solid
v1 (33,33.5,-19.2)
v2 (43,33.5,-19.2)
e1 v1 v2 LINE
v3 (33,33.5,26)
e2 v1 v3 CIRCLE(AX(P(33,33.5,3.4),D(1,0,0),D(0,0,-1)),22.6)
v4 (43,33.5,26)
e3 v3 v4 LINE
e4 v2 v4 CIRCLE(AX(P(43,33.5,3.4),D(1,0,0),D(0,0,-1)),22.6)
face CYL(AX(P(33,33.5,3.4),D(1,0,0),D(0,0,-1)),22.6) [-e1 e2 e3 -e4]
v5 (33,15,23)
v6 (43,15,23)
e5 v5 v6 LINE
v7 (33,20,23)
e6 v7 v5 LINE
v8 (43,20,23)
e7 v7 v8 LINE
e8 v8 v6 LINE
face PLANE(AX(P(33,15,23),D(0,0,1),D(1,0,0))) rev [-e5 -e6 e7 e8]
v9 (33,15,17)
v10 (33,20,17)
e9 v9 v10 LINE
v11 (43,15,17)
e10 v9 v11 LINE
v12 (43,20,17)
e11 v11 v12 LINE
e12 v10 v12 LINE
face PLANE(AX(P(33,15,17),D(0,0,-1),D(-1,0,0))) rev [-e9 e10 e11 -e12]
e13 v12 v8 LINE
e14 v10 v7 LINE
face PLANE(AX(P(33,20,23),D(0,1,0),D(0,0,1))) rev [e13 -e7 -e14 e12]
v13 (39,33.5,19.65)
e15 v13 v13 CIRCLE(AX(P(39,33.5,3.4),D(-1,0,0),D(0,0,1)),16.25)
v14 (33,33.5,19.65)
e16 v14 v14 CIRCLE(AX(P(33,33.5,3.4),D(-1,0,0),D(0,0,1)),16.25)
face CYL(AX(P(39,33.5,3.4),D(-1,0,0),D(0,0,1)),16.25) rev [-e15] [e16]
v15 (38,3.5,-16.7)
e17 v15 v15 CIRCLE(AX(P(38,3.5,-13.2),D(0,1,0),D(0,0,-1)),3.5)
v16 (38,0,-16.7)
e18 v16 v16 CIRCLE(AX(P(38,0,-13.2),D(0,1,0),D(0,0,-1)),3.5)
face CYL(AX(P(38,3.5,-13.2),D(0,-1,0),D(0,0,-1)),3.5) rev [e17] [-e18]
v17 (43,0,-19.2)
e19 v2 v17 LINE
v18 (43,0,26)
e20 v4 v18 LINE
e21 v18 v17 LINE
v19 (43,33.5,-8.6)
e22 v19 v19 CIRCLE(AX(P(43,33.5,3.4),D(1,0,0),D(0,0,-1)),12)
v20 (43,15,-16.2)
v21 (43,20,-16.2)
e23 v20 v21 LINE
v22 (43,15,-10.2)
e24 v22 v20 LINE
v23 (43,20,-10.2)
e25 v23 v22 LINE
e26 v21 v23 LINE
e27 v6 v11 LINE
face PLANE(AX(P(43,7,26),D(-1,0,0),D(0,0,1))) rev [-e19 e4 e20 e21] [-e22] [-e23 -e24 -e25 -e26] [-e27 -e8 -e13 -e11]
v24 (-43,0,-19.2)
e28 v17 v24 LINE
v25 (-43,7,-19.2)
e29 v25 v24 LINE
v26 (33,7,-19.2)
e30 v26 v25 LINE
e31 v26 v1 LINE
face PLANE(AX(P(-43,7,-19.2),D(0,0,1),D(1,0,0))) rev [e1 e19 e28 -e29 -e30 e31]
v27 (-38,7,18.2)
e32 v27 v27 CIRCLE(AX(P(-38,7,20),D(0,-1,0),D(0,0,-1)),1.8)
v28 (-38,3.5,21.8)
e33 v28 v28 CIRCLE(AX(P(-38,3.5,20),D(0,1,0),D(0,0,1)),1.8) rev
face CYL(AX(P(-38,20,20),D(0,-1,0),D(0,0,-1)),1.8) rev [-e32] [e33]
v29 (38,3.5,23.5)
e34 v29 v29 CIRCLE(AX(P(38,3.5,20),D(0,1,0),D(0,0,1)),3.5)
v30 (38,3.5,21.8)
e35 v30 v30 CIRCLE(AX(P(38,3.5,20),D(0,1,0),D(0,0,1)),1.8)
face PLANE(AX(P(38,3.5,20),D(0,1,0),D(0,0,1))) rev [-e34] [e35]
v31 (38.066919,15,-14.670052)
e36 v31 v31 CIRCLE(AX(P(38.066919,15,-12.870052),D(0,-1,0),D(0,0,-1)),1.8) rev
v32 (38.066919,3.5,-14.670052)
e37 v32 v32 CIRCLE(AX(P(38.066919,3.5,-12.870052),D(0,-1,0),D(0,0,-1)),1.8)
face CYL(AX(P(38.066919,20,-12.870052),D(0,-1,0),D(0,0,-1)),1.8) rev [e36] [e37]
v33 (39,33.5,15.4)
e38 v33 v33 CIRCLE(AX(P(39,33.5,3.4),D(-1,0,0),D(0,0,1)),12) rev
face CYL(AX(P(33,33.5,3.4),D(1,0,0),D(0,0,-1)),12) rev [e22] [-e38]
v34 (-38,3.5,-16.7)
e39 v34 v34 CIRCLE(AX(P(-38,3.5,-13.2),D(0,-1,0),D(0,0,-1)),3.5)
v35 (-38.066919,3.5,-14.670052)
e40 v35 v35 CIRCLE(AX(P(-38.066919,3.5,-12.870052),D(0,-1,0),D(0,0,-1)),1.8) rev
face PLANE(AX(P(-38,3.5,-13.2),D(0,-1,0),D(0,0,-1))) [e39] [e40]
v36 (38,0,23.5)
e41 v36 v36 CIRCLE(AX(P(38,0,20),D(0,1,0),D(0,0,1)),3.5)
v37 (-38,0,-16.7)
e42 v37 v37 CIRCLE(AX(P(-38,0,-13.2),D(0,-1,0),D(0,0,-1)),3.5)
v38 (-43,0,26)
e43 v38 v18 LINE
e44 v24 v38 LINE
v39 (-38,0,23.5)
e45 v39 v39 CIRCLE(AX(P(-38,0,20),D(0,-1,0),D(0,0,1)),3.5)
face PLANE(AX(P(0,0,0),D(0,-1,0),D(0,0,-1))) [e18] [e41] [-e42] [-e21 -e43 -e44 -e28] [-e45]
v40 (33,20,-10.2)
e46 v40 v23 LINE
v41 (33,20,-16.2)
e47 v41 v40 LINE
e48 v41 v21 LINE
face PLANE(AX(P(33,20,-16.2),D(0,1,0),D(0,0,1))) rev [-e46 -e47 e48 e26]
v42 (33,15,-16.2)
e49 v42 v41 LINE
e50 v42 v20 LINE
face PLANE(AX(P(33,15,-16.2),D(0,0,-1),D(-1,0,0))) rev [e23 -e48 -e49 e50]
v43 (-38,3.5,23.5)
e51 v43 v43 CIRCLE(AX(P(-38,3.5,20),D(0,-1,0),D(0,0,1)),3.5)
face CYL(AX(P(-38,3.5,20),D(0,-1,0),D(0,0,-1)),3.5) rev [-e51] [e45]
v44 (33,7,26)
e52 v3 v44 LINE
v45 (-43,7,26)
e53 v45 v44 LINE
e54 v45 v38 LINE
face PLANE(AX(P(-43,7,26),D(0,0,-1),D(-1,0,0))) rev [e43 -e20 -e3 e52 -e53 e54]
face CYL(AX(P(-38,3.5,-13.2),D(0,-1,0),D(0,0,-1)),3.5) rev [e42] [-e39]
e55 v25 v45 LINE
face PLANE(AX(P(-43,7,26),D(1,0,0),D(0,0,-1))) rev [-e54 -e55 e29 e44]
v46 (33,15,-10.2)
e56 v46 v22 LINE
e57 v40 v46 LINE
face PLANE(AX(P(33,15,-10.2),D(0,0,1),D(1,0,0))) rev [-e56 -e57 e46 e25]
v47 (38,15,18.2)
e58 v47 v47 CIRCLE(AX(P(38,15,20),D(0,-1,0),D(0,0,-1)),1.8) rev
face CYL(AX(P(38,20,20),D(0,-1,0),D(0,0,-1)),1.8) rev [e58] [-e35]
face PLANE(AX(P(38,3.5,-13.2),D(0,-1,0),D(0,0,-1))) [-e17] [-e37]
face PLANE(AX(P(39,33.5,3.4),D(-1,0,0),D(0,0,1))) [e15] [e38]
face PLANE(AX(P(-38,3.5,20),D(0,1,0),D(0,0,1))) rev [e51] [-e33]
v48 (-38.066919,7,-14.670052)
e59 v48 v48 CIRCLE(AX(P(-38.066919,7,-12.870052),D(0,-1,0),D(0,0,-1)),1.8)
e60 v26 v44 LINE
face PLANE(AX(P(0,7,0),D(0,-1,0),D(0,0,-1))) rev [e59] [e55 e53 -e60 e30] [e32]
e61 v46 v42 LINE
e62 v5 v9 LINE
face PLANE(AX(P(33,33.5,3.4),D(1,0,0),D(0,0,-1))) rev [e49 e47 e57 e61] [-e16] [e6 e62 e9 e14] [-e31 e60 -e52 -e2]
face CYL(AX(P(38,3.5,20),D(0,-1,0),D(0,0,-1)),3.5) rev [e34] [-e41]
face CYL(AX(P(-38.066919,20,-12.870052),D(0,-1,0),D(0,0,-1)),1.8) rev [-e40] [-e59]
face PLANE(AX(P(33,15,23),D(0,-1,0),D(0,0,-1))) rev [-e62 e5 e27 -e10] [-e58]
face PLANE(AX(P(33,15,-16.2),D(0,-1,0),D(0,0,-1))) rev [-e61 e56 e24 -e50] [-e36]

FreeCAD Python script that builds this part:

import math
import FreeCAD as App
import Part
import Sketcher

V = App.Vector

doc = App.newDocument("Part")
body = doc.addObject("PartDesign::Body", "Body")

# Sketch on XZ plane
sketch1 = body.newObject("Sketcher::SketchObject", "Sketch")
sketch1.AttachmentSupport = (doc.getObject("XZ_Plane"), [""])
sketch1.MapMode = "FlatFace"
sketch1.addGeometry([
    Part.LineSegment(V(-43, -19, 0), V(-43, 26, 0)),
    Part.LineSegment(V(-43, 26, 0), V(43, 26, 0)),
    Part.LineSegment(V(43, 26, 0), V(43, -19, 0)),
    Part.LineSegment(V(43, -19, 0), V(-43, -19, 0)),
], False)
sketch1.addConstraint([
    Sketcher.Constraint("Coincident", 0, 2, 1, 1),
    Sketcher.Constraint("Coincident", 1, 2, 2, 1),
    Sketcher.Constraint("Coincident", 2, 2, 3, 1),
    Sketcher.Constraint("Coincident", 3, 2, 0, 1),
    Sketcher.Constraint("Vertical", 0),
    Sketcher.Constraint("Horizontal", 1),
    Sketcher.Constraint("Vertical", 2),
    Sketcher.Constraint("Horizontal", 3),
    Sketcher.Constraint("DistanceX", 1, 1, 1, 2, 86.0),
    Sketcher.Constraint("DistanceY", 0, 1, 0, 2, 45.2),
    Sketcher.Constraint("DistanceX", 0, 2, -1, 1, 43.0),
    Sketcher.Constraint("DistanceY", -1, 1, 0, 2, 26.0),
])
pad1 = body.newObject("PartDesign::Pad", "Pad")
pad1.Profile = sketch1
pad1.Length = 7
pad1.Reversed = True

# Sketch on YZ plane
sketch2 = body.newObject("Sketcher::SketchObject", "Sketch001")
sketch2.AttachmentSupport = (doc.getObject("YZ_Plane"), [""])
sketch2.MapMode = "FlatFace"
sketch2.AttachmentOffset = App.Placement(V(0, 0, 43), App.Rotation())
sketch2.addGeometry([
    Part.LineSegment(V(0, 26, 0), V(0, -19, 0)),  # 0
    Part.LineSegment(V(0, -19, 0), V(34, -19, 0)),  # 1
    Part.ArcOfCircle(Part.Circle(V(34, 3, 0), V(0, 0, 1), 23), math.radians(-90), math.radians(90)),  # 2
    Part.LineSegment(V(34, 26, 0), V(0, 26, 0)),  # 3
    Part.LineSegment(V(15, -10, 0), V(20, -10, 0)),  # 4
    Part.LineSegment(V(20, -10, 0), V(20, -16, 0)),  # 5
    Part.LineSegment(V(20, -16, 0), V(15, -16, 0)),  # 6
    Part.LineSegment(V(15, -16, 0), V(15, -10, 0)),  # 7
    Part.LineSegment(V(15, 23, 0), V(20, 23, 0)),  # 8
    Part.LineSegment(V(20, 23, 0), V(20, 17, 0)),  # 9
    Part.LineSegment(V(20, 17, 0), V(15, 17, 0)),  # 10
    Part.LineSegment(V(15, 17, 0), V(15, 23, 0)),  # 11
    Part.Circle(V(34, 3, 0), V(0, 0, 1), 12),  # 12
], False)
sketch2.addConstraint([
    Sketcher.Constraint("Coincident", 0, 2, 1, 1),
    Sketcher.Constraint("Tangent", 1, 2, 2, 1),
    Sketcher.Constraint("Tangent", 2, 2, 3, 1),
    Sketcher.Constraint("Coincident", 3, 2, 0, 1),
    Sketcher.Constraint("Coincident", 4, 2, 5, 1),
    Sketcher.Constraint("Coincident", 5, 2, 6, 1),
    Sketcher.Constraint("Coincident", 6, 2, 7, 1),
    Sketcher.Constraint("Coincident", 7, 2, 4, 1),
    Sketcher.Constraint("Coincident", 8, 2, 9, 1),
    Sketcher.Constraint("Coincident", 9, 2, 10, 1),
    Sketcher.Constraint("Coincident", 10, 2, 11, 1),
    Sketcher.Constraint("Coincident", 11, 2, 8, 1),
    Sketcher.Constraint("Vertical", 0),
    Sketcher.Constraint("Horizontal", 1),
    Sketcher.Constraint("Horizontal", 3),
    Sketcher.Constraint("Horizontal", 4),
    Sketcher.Constraint("Vertical", 5),
    Sketcher.Constraint("Horizontal", 6),
    Sketcher.Constraint("Vertical", 7),
    Sketcher.Constraint("Horizontal", 8),
    Sketcher.Constraint("Vertical", 9),
    Sketcher.Constraint("Horizontal", 10),
    Sketcher.Constraint("Vertical", 11),
    Sketcher.Constraint("Coincident", 12, 3, 2, 3),
    Sketcher.Constraint("PointOnObject", 0, 2, -2),
    Sketcher.Constraint("Vertical", 5, 2, 8, 2),
    Sketcher.Constraint("Vertical", 7, 2, 10, 2),
    Sketcher.Constraint("Equal", 7, 9),
    Sketcher.Constraint("Diameter", 12, 24.0),
    Sketcher.Constraint("Radius", 2, 22.6),
    Sketcher.Constraint("DistanceX", 4, 1, 4, 2, 5.0),
    Sketcher.Constraint("DistanceY", 5, 2, 5, 1, 6.0),
    Sketcher.Constraint("DistanceX", 1, 1, 1, 2, 33.5),
    Sketcher.Constraint("DistanceY", -1, 1, 2, 2, 26.0),
    Sketcher.Constraint("DistanceX", -1, 1, 4, 2, 20.0),
    Sketcher.Constraint("DistanceY", -1, 1, 8, 2, 23.0),
    Sketcher.Constraint("DistanceY", 1, 2, 4, 2, 9.0),
])
pad2 = body.newObject("PartDesign::Pad", "Pad001")
pad2.Profile = sketch2
pad2.Length = 10
pad2.Reversed = True

# Sketch on YZ plane
sketch3 = body.newObject("Sketcher::SketchObject", "Sketch002")
sketch3.AttachmentSupport = (doc.getObject("YZ_Plane"), [""])
sketch3.MapMode = "FlatFace"
sketch3.AttachmentOffset = App.Placement(V(0, 0, 33), App.Rotation())
sketch3.addGeometry(Part.Circle(V(34, 3, 0), V(0, 0, 1), 16), False)
sketch3.addConstraint([
    Sketcher.Constraint("Diameter", 0, 32.5),
    Sketcher.Constraint("DistanceX", -1, 1, 0, 3, 33.5),
    Sketcher.Constraint("DistanceY", -1, 1, 0, 3, 3.4),
])
pocket1 = body.newObject("PartDesign::Pocket", "Pocket")
pocket1.Profile = sketch3
pocket1.Length = 6
pocket1.Reversed = True

# Sketch on XZ plane
sketch4 = body.newObject("Sketcher::SketchObject", "Sketch003")
sketch4.AttachmentSupport = (doc.getObject("XZ_Plane"), [""])
sketch4.MapMode = "FlatFace"
sketch4.addGeometry([
    Part.Circle(V(38, 20, 0), V(0, 0, 1), 1.8),
    Part.Circle(V(38.1, -12.9, 0), V(0, 0, 1), 1.8),
], False)
sketch4.addConstraint([
    Sketcher.Constraint("Equal", 0, 1),
    Sketcher.Constraint("Diameter", 0, 3.6),
    Sketcher.Constraint("DistanceX", -1, 1, 0, 3, 38.0),
    Sketcher.Constraint("DistanceY", -1, 1, 0, 3, 20.0),
    Sketcher.Constraint("DistanceX", -1, 1, 1, 3, 38.066919),
    Sketcher.Constraint("DistanceY", 1, 3, -1, 1, 12.870052),
])
pocket2 = body.newObject("PartDesign::Pocket", "Pocket001")
pocket2.Profile = sketch4
pocket2.Length = 20

# Sketch on XZ plane
sketch5 = body.newObject("Sketcher::SketchObject", "Sketch004")
sketch5.AttachmentSupport = (doc.getObject("XZ_Plane"), [""])
sketch5.MapMode = "FlatFace"
sketch5.addGeometry([
    Part.Circle(V(38, 20, 0), V(0, 0, 1), 3.5),
    Part.Circle(V(38, -13.2, 0), V(0, 0, 1), 3.5),
], False)
sketch5.addConstraint([
    Sketcher.Constraint("Equal", 0, 1),
    Sketcher.Constraint("Vertical", 0, 3, 1, 3),
    Sketcher.Constraint("Diameter", 0, 7.0),
    Sketcher.Constraint("DistanceX", -1, 1, 0, 3, 38.0),
    Sketcher.Constraint("DistanceY", -1, 1, 0, 3, 20.0),
    Sketcher.Constraint("DistanceY", 1, 3, -1, 1, 13.2),
])
pocket3 = body.newObject("PartDesign::Pocket", "Pocket002")
pocket3.Profile = sketch5
pocket3.Length = 3.5
doc.recompute()

mirrored = body.newObject("PartDesign::Mirrored", "Mirrored")
mirrored.Originals = [pocket2, pocket3]
mirrored.MirrorPlane = (doc.getObject("YZ_Plane"), [""])
body.Tip = mirrored

doc.recompute()
